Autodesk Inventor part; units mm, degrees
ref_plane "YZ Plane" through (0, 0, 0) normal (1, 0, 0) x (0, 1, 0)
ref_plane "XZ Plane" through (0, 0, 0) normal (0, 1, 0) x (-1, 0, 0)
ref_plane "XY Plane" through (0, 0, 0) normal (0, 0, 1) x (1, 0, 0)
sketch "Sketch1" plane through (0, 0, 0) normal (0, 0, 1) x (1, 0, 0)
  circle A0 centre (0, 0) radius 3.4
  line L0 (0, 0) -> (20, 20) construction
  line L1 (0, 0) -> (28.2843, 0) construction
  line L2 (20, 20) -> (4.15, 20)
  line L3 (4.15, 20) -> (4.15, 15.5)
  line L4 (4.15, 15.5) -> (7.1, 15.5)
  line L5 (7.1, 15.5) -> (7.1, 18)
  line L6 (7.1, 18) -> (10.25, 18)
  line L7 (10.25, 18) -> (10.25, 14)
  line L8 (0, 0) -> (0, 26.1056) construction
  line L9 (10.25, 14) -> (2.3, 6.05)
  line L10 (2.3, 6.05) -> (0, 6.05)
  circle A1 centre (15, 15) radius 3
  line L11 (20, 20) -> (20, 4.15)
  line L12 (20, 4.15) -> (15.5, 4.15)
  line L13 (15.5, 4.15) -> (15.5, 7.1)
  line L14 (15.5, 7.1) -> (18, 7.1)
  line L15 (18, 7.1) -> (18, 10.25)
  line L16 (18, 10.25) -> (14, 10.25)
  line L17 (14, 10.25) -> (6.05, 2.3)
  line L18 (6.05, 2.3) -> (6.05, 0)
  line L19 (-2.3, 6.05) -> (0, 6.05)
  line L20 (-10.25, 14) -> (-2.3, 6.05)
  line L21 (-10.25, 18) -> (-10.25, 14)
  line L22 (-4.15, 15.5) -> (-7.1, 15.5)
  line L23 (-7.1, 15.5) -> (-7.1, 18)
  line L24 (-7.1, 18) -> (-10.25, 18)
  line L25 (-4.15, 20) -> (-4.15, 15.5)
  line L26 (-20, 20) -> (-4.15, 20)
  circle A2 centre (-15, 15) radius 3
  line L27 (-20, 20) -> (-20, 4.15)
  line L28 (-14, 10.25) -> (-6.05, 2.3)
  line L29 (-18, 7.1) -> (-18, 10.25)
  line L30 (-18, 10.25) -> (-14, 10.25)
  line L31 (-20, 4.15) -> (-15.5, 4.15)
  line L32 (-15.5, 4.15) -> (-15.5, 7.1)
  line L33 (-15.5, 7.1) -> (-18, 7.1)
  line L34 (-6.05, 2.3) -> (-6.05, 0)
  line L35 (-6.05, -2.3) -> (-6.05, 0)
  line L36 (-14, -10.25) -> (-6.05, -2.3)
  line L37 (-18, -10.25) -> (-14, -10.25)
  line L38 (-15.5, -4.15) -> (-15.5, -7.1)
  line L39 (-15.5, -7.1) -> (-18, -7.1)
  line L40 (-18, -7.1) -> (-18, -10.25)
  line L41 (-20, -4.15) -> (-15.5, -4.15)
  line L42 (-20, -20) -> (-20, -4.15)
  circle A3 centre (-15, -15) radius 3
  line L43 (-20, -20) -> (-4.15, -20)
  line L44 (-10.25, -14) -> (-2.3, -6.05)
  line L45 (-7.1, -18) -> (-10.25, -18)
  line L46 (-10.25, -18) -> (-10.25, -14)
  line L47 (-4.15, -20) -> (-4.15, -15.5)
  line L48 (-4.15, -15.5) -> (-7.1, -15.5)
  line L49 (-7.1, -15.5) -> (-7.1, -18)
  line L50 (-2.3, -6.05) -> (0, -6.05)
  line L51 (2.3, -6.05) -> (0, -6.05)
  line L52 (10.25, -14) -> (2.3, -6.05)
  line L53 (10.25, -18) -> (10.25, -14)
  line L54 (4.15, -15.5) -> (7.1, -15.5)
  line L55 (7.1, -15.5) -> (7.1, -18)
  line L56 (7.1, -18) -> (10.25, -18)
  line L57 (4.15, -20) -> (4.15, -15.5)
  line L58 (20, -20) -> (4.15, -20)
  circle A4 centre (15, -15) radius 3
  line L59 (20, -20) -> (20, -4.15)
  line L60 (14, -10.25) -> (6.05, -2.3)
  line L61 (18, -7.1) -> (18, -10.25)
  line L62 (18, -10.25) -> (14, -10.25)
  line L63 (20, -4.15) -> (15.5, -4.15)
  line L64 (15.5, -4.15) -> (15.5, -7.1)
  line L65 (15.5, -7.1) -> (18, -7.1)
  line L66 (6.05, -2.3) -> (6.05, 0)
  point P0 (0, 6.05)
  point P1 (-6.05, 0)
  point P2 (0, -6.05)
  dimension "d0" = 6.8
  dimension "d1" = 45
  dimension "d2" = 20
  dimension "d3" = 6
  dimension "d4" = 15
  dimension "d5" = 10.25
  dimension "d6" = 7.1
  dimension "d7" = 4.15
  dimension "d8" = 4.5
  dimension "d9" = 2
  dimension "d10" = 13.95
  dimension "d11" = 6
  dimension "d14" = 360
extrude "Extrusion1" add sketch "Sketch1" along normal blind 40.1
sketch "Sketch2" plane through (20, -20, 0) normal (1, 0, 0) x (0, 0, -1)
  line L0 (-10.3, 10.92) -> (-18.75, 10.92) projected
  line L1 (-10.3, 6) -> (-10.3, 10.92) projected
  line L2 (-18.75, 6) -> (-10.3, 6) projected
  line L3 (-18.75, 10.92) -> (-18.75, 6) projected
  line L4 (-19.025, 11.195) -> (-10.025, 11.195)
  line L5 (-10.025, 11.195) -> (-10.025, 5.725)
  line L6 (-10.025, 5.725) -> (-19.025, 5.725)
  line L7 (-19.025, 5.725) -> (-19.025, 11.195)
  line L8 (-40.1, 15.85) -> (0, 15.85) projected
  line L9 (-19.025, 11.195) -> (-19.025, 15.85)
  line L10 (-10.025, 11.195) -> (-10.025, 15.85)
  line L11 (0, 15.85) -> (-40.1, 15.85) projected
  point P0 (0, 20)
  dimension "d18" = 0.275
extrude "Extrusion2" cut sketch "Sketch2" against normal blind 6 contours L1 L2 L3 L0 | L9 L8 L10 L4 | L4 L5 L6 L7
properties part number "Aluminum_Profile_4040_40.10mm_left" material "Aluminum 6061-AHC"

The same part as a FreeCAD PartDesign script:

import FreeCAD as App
import Part
import Sketcher
from FreeCAD import Vector


def add_polygon(sketch, points):
    """Adds a closed chain of lines whose ends are joined by coincident constraints."""
    first, n = sketch.GeometryCount, len(points)
    for a, b in zip(points, points[1:] + points[:1]):
        sketch.addGeometry(Part.LineSegment(App.Vector(*a, 0), App.Vector(*b, 0)), False)
    for i in range(n):
        sketch.addConstraint(Sketcher.Constraint("Coincident", first + i, 2, first + (i + 1) % n, 1))

doc = App.newDocument("Part")
body = doc.addObject("PartDesign::Body", "Body")

sketch1 = body.newObject("Sketcher::SketchObject", "Sketch")
sketch1.AttachmentSupport = (doc.getObject("XY_Plane"), [""])
sketch1.MapMode = "FlatFace"
add_polygon(sketch1, [(20, 4.2), (20, 20), (4.2, 20), (4.2, 15.5), (7.1, 15.5), (7.1, 18), (10.2, 18), (10.2, 14), (2.3, 6), (-2.3, 6), (-10.2, 14), (-10.2, 18), (-7.1, 18), (-7.1, 15.5), (-4.2, 15.5), (-4.2, 20), (-20, 20), (-20, 4.2), (-15.5, 4.2), (-15.5, 7.1), (-18, 7.1), (-18, 10.2), (-14, 10.2), (-6, 2.3), (-6, -2.3), (-14, -10.2), (-18, -10.2), (-18, -7.1), (-15.5, -7.1), (-15.5, -4.2), (-20, -4.2), (-20, -20), (-4.2, -20), (-4.2, -15.5), (-7.1, -15.5), (-7.1, -18), (-10.2, -18), (-10.2, -14), (-2.3, -6), (2.3, -6), (10.2, -14), (10.2, -18), (7.1, -18), (7.1, -15.5), (4.2, -15.5), (4.2, -20), (20, -20), (20, -4.2), (15.5, -4.2), (15.5, -7.1), (18, -7.1), (18, -10.2), (14, -10.2), (6, -2.3), (6, 2.3), (14, 10.2), (18, 10.2), (18, 7.1), (15.5, 7.1), (15.5, 4.2)])
sketch1.addGeometry(Part.Circle(Vector(-15, -15, 0), Vector(0, 0, 1), 3), False)
sketch1.addGeometry(Part.Circle(Vector(15, -15, 0), Vector(0, 0, 1), 3), False)
sketch1.addGeometry(Part.Circle(Vector(-15, 15, 0), Vector(0, 0, 1), 3), False)
sketch1.addGeometry(Part.Circle(Vector(0, 0, 0), Vector(0, 0, 1), 3.4), False)
sketch1.addGeometry(Part.Circle(Vector(15, 15, 0), Vector(0, 0, 1), 3), False)
sketch1.addConstraint([
    Sketcher.Constraint("Vertical", 0),
    Sketcher.Constraint("Horizontal", 1),
    Sketcher.Constraint("Vertical", 2),
    Sketcher.Constraint("Horizontal", 3),
    Sketcher.Constraint("Vertical", 4),
    Sketcher.Constraint("Horizontal", 5),
    Sketcher.Constraint("Vertical", 6),
    Sketcher.Constraint("Horizontal", 8),
    Sketcher.Constraint("Vertical", 10),
    Sketcher.Constraint("Horizontal", 11),
    Sketcher.Constraint("Vertical", 12),
    Sketcher.Constraint("Horizontal", 13),
    Sketcher.Constraint("Vertical", 14),
    Sketcher.Constraint("Horizontal", 15),
    Sketcher.Constraint("Vertical", 16),
    Sketcher.Constraint("Horizontal", 17),
    Sketcher.Constraint("Vertical", 18),
    Sketcher.Constraint("Horizontal", 19),
    Sketcher.Constraint("Vertical", 20),
    Sketcher.Constraint("Horizontal", 21),
    Sketcher.Constraint("Vertical", 23),
    Sketcher.Constraint("Horizontal", 25),
    Sketcher.Constraint("Vertical", 26),
    Sketcher.Constraint("Horizontal", 27),
    Sketcher.Constraint("Vertical", 28),
    Sketcher.Constraint("Horizontal", 29),
    Sketcher.Constraint("Vertical", 30),
    Sketcher.Constraint("Horizontal", 31),
    Sketcher.Constraint("Vertical", 32),
    Sketcher.Constraint("Horizontal", 33),
    Sketcher.Constraint("Vertical", 34),
    Sketcher.Constraint("Horizontal", 35),
    Sketcher.Constraint("Vertical", 36),
    Sketcher.Constraint("Horizontal", 38),
    Sketcher.Constraint("Vertical", 40),
    Sketcher.Constraint("Horizontal", 41),
    Sketcher.Constraint("Vertical", 42),
    Sketcher.Constraint("Horizontal", 43),
    Sketcher.Constraint("Vertical", 44),
    Sketcher.Constraint("Horizontal", 45),
    Sketcher.Constraint("Vertical", 46),
    Sketcher.Constraint("Horizontal", 47),
    Sketcher.Constraint("Vertical", 48),
    Sketcher.Constraint("Horizontal", 49),
    Sketcher.Constraint("Vertical", 50),
    Sketcher.Constraint("Horizontal", 51),
    Sketcher.Constraint("Vertical", 53),
    Sketcher.Constraint("Horizontal", 55),
    Sketcher.Constraint("Vertical", 56),
    Sketcher.Constraint("Horizontal", 57),
    Sketcher.Constraint("Vertical", 58),
    Sketcher.Constraint("Horizontal", 59),
    Sketcher.Constraint("Coincident", 63, 3, -1, 1),
    Sketcher.Constraint("Equal", 60, 61),
    Sketcher.Constraint("Equal", 61, 62),
    Sketcher.Constraint("Equal", 62, 64),
    Sketcher.Constraint("Symmetric", 61, 3, 62, 3, -1, 1),
    Sketcher.Constraint("Symmetric", 60, 3, 64, 3, -1, 1),
    Sketcher.Constraint("Symmetric", 0, 2, 30, 2, -1, 1),
    Sketcher.Constraint("Symmetric", 2, 2, 32, 2, -1, 1),
    Sketcher.Constraint("Symmetric", 4, 2, 34, 2, -1, 1),
    Sketcher.Constraint("Symmetric", 6, 2, 36, 2, -1, 1),
    Sketcher.Constraint("Symmetric", 7, 2, 37, 2, -1, 1),
    Sketcher.Constraint("Symmetric", 9, 2, 39, 2, -1, 1),
    Sketcher.Constraint("Symmetric", 11, 2, 41, 2, -1, 1),
    Sketcher.Constraint("Symmetric", 13, 2, 43, 2, -1, 1),
    Sketcher.Constraint("Symmetric", 15, 2, 45, 2, -1, 1),
    Sketcher.Constraint("Symmetric", 17, 2, 47, 2, -1, 1),
    Sketcher.Constraint("Symmetric", 19, 2, 49, 2, -1, 1),
    Sketcher.Constraint("Symmetric", 21, 2, 51, 2, -1, 1),
    Sketcher.Constraint("Symmetric", 22, 2, 52, 2, -1, 1),
    Sketcher.Constraint("Symmetric", 24, 2, 54, 2, -1, 1),
    Sketcher.Constraint("Symmetric", 26, 2, 56, 2, -1, 1),
    Sketcher.Constraint("Symmetric", 28, 2, 58, 2, -1, 1),
    Sketcher.Constraint("Symmetric", 60, 3, 61, 3, -2),
    Sketcher.Constraint("Symmetric", 6, 2, 9, 2, -2),
    Sketcher.Constraint("Symmetric", 4, 2, 11, 2, -2),
    Sketcher.Constraint("Symmetric", 2, 2, 13, 2, -2),
    Sketcher.Constraint("Symmetric", 0, 2, 15, 2, -2),
    Sketcher.Constraint("Symmetric", 28, 2, 47, 2, -2),
    Sketcher.Constraint("Symmetric", 26, 2, 49, 2, -2),
    Sketcher.Constraint("Symmetric", 24, 2, 51, 2, -2),
    Sketcher.Constraint("Perpendicular", 7, 9),
    Sketcher.Constraint("Parallel", 9, 22),
    Sketcher.Constraint("Perpendicular", 22, 24),
    Sketcher.Constraint("Perpendicular", 37, 39),
    Sketcher.Constraint("Perpendicular", 52, 54),
    Sketcher.Constraint("Horizontal", 23, 2, 52, 2),
    Sketcher.Constraint("Equal", 45, 0),
    Sketcher.Constraint("Equal", 59, 2),
    Sketcher.Constraint("Equal", 57, 4),
    Sketcher.Constraint("Equal", 55, 6),
    Sketcher.Constraint("Equal", 43, 18),
    Sketcher.Constraint("Equal", 41, 20),
    Sketcher.Constraint("Equal", 38, 23),
    Sketcher.Constraint("Equal", 9, 22),
    Sketcher.Constraint("Diameter", 60, 6.0),
    Sketcher.Constraint("Diameter", 63, 6.8),
    Sketcher.Constraint("DistanceX", 17, 1, 17, 2, 4.5),
    Sketcher.Constraint("DistanceX", 60, 3, -1, 1, 15.0),
    Sketcher.Constraint("DistanceY", 60, 3, -1, 1, 15.0),
    Sketcher.Constraint("DistanceX", -1, 1, 0, 2, 20.0),
    Sketcher.Constraint("DistanceX", -1, 1, 3, 2, 7.1),
    Sketcher.Constraint("DistanceX", 21, 1, 21, 2, 4.0),
    Sketcher.Constraint("DistanceX", -1, 1, 1, 2, 4.15),
    Sketcher.Constraint("DistanceX", -1, 1, 5, 2, 10.25),
    Sketcher.Constraint("DistanceX", 8, 2, 8, 1, 4.6),
    Sketcher.Constraint("DistanceX", 19, 2, 19, 1, 2.5),
])
pad1 = body.newObject("PartDesign::Pad", "Pad")
pad1.Profile = sketch1
pad1.Length = 40.1

sketch2 = body.newObject("Sketcher::SketchObject", "Sketch001")
sketch2.AttachmentSupport = (doc.getObject("YZ_Plane"), [""])
sketch2.MapMode = "FlatFace"
sketch2.AttachmentOffset = App.Placement(Vector(0, 0, 20), App.Rotation())
add_polygon(sketch2, [(-14, 10), (-4, 10), (-4, 19), (-14, 19)])
sketch2.addConstraint([
    Sketcher.Constraint("Horizontal", 0),
    Sketcher.Constraint("Vertical", 1),
    Sketcher.Constraint("Horizontal", 2),
    Sketcher.Constraint("Vertical", 3),
    Sketcher.Constraint("DistanceY", 1, 1, 1, 2, 9.0),
    Sketcher.Constraint("DistanceX", 0, 1, 0, 2, 10.125),
    Sketcher.Constraint("DistanceX", 0, 2, -1, 1, 4.15),
    Sketcher.Constraint("DistanceY", -1, 1, 0, 2, 10.025),
])
pocket1 = body.newObject("PartDesign::Pocket", "Pocket")
pocket1.Profile = sketch2
pocket1.Length = 6

doc.recompute()
